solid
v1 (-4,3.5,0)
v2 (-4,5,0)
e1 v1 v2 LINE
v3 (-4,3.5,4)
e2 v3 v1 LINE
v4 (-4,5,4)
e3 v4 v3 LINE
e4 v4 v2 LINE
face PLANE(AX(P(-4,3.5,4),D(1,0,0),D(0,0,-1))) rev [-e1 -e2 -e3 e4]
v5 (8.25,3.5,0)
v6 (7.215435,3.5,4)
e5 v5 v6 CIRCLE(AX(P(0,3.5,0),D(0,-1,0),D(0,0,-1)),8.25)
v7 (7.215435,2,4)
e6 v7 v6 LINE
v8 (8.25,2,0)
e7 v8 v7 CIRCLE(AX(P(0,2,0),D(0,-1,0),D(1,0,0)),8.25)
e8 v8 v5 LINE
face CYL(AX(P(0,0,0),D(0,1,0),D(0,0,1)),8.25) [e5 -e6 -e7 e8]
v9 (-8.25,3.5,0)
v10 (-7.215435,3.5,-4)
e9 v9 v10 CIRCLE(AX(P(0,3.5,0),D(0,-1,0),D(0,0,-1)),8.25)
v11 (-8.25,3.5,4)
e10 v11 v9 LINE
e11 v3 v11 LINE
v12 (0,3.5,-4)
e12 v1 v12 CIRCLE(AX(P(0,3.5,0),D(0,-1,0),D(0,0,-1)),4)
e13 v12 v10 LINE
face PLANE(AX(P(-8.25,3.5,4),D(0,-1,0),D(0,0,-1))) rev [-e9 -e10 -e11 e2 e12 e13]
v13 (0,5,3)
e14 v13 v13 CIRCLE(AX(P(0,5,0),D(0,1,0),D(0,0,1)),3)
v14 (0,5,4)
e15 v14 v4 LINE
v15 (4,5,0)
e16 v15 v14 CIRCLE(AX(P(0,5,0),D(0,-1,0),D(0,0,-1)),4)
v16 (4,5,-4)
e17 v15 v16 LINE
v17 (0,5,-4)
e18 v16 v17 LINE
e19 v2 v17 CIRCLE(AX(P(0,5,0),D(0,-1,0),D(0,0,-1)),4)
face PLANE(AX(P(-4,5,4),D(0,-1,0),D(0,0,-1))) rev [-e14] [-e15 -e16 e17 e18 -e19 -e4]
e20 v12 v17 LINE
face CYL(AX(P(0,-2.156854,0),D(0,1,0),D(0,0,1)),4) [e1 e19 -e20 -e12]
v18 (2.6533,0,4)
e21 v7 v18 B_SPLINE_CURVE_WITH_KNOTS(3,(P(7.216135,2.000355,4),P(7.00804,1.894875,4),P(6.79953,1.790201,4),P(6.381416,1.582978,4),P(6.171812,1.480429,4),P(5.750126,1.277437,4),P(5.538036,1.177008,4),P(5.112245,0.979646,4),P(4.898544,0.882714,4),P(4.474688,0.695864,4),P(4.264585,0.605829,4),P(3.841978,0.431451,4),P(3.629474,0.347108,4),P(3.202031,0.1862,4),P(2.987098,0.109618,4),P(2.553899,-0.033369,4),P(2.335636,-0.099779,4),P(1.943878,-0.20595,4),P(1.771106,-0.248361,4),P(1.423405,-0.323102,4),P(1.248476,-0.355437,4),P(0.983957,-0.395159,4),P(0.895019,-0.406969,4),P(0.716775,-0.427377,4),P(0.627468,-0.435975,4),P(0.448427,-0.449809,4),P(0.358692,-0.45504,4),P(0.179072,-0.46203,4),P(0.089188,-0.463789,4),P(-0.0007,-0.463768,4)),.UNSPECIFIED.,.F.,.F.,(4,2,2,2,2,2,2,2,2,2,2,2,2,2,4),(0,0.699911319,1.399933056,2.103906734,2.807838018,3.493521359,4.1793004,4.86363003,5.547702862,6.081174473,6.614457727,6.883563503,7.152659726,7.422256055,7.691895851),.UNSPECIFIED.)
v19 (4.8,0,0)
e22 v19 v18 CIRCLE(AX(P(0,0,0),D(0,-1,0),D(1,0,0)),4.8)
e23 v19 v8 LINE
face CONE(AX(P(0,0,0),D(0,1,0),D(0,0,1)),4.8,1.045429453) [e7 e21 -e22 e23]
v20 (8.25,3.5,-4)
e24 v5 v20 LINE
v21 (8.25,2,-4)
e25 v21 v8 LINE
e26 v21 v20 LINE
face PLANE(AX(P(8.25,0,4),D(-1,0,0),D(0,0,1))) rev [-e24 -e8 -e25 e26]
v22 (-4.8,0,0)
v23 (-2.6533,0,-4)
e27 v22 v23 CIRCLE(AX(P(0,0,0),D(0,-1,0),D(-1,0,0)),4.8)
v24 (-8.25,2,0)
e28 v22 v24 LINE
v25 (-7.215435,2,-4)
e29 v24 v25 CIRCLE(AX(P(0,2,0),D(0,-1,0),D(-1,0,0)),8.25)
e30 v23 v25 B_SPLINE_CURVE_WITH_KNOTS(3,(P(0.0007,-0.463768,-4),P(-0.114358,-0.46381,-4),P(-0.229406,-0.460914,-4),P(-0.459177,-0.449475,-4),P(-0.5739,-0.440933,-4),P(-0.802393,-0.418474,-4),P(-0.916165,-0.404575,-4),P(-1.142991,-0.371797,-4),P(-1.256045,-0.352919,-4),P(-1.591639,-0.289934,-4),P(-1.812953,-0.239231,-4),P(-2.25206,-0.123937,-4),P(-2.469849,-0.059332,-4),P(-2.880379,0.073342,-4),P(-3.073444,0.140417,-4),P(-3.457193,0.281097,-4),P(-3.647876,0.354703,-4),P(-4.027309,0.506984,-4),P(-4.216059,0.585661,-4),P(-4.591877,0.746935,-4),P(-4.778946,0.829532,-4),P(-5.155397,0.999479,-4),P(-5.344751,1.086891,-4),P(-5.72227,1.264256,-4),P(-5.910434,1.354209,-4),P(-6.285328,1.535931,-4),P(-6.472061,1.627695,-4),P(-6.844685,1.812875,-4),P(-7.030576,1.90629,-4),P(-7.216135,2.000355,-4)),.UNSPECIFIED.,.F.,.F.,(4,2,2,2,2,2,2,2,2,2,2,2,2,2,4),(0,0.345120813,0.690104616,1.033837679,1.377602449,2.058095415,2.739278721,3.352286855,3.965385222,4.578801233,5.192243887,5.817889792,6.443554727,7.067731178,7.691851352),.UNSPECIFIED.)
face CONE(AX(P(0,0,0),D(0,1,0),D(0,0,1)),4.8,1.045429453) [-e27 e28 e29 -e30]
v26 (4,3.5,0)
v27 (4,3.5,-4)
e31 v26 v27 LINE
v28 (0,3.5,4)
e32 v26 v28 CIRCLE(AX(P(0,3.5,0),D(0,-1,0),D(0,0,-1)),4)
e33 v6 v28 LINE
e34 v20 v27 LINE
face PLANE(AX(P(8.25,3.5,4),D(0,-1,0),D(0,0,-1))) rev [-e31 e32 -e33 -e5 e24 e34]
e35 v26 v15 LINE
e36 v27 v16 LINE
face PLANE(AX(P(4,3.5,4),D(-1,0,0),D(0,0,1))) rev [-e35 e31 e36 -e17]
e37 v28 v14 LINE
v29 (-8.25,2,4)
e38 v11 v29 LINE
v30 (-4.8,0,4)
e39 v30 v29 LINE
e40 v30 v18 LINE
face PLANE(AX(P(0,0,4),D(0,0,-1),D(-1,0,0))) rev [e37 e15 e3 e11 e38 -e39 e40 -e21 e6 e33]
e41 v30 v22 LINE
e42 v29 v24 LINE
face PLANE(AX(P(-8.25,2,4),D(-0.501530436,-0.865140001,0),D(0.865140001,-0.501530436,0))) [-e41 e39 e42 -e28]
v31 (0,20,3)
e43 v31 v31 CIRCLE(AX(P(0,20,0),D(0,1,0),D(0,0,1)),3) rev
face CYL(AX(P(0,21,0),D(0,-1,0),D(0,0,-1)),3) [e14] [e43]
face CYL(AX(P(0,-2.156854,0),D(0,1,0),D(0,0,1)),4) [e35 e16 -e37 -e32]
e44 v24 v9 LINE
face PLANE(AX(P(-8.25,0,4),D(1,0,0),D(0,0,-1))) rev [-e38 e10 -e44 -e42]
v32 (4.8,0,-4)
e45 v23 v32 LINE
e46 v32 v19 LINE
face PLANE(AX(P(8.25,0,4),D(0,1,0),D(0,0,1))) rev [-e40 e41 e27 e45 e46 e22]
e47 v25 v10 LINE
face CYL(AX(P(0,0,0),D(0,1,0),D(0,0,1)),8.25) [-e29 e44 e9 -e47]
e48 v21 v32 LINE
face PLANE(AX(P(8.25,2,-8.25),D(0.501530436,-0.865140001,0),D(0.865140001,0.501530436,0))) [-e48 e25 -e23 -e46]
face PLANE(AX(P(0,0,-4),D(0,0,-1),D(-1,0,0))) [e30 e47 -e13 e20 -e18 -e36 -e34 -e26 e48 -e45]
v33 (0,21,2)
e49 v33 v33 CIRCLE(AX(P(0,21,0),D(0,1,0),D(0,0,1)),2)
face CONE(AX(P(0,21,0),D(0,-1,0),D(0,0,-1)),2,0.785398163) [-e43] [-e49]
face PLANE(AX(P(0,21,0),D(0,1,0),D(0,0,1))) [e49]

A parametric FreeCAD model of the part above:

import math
import FreeCAD as App
import Part
import Sketcher

V = App.Vector
Q = App.Units.Quantity


def edges_at(feature, points):
    """Names of the edges that pass closest to the given points."""
    edges = feature.Shape.Edges
    near = lambda p: min(range(len(edges)), key=lambda i: edges[i].distToShape(Part.Vertex(*p))[0])
    return sorted({f"Edge{near(p) + 1}" for p in points})


def add_polygon(sketch, points):
    """Adds a closed chain of lines whose ends are joined by coincident constraints."""
    first, n = sketch.GeometryCount, len(points)
    for a, b in zip(points, points[1:] + points[:1]):
        sketch.addGeometry(Part.LineSegment(App.Vector(*a, 0), App.Vector(*b, 0)), False)
    for i in range(n):
        sketch.addConstraint(Sketcher.Constraint("Coincident", first + i, 2, first + (i + 1) % n, 1))

doc = App.newDocument("Part")
params = doc.addObject("Spreadsheet::Sheet", "Params")
for row, (alias, value) in enumerate([
    ("sketch1_width", "8 mm"),
    ("sketch1_width2", "16.5 mm"),
    ("sketch1_height", "3.5 mm"),
    ("sketch1_height2", "1.5 mm"),
    ("pad1_length", "8 mm"),
    ("sketch2_diameter", "6 mm"),
    ("pad2_length", "16 mm"),
    ("sketch3_radius", "4 mm"),
    ("pocket1_length", "1.5 mm"),
    ("sketch4_height", "4 mm"),
    ("sketch4_radius", "8.25 mm"),
    ("sketch5_height", "2 mm"),
    ("sketch5_width", "3.45 mm"),
    ("sketch6_radius", "8.25 mm"),
    ("chamfer_size", "1 mm"),
], start=1):
    params.set(f"A{row}", alias)
    params.set(f"B{row}", "=" + value)
    params.setAlias(f"B{row}", alias)

body = doc.addObject("PartDesign::Body", "Body")

# Sketch on XY plane
sketch1 = body.newObject("Sketcher::SketchObject", "Sketch")
sketch1.AttachmentSupport = (doc.getObject("XY_Plane"), [""])
sketch1.MapMode = "FlatFace"
add_polygon(sketch1, [(-8.2, 0), (8.2, 0), (8.2, 3.5), (4, 3.5), (4, 5), (-4, 5), (-4, 3.5), (-8.2, 3.5)])  # lines 0-7
sketch1.addConstraint(Sketcher.Constraint("Horizontal", 0))
sketch1.addConstraint(Sketcher.Constraint("Vertical", 1))
sketch1.addConstraint(Sketcher.Constraint("Horizontal", 2))
sketch1.addConstraint(Sketcher.Constraint("Vertical", 3))
sketch1.addConstraint(Sketcher.Constraint("Horizontal", 4))
sketch1.addConstraint(Sketcher.Constraint("Vertical", 5))
sketch1.addConstraint(Sketcher.Constraint("Horizontal", 6))
sketch1.addConstraint(Sketcher.Constraint("Vertical", 7))
sketch1.addConstraint(Sketcher.Constraint("Symmetric", 0, 2, 7, 2, -1, 1))
sketch1.addConstraint(Sketcher.Constraint("Symmetric", 2, 2, 5, 2, -2))
sketch1.addConstraint(Sketcher.Constraint("DistanceX", 4, 2, 4, 1, Q("8 mm")))
sketch1.addConstraint(Sketcher.Constraint("DistanceX", 0, 1, 0, 2, Q("16.5 mm")))
sketch1.addConstraint(Sketcher.Constraint("DistanceY", 1, 1, 1, 2, Q("3.5 mm")))
sketch1.addConstraint(Sketcher.Constraint("DistanceY", 3, 1, 3, 2, Q("1.5 mm")))
sketch1.setExpression("Constraints[18]", "Params.sketch1_width")
sketch1.setExpression("Constraints[19]", "Params.sketch1_width2")
sketch1.setExpression("Constraints[20]", "Params.sketch1_height")
sketch1.setExpression("Constraints[21]", "Params.sketch1_height2")
pad1 = body.newObject("PartDesign::Pad", "Pad")
pad1.Profile = sketch1
pad1.setExpression("Length", "Params.pad1_length")
pad1.Midplane = True

# Sketch on XZ plane
sketch2 = body.newObject("Sketcher::SketchObject", "Sketch001")
sketch2.AttachmentSupport = (doc.getObject("XZ_Plane"), [""])
sketch2.MapMode = "FlatFace"
sketch2.AttachmentOffset = App.Placement(V(0, 0, -5), App.Rotation())
sketch2.addGeometry(Part.Circle(V(0, 0, 0), V(0, 0, 1), 3), False)
sketch2.addConstraint(Sketcher.Constraint("Coincident", 0, 3, -1, 1))
sketch2.addConstraint(Sketcher.Constraint("Diameter", 0, Q("6 mm")))
sketch2.setExpression("Constraints[1]", "Params.sketch2_diameter")
pad2 = body.newObject("PartDesign::Pad", "Pad001")
pad2.Profile = sketch2
pad2.setExpression("Length", "Params.pad2_length")
pad2.Reversed = True

# Sketch on XZ plane
sketch3 = body.newObject("Sketcher::SketchObject", "Sketch002")
sketch3.AttachmentSupport = (doc.getObject("XZ_Plane"), [""])
sketch3.MapMode = "FlatFace"
sketch3.AttachmentOffset = App.Placement(V(0, 0, -5), App.Rotation())
sketch3.addGeometry(Part.LineSegment(V(-4, -4, 0), V(-4, 0, 0)), False)
sketch3.addGeometry(Part.ArcOfCircle(Part.Circle(V(0, 0, 0), V(0, 0, 1), 4), math.radians(180), math.radians(270)), False)
sketch3.addGeometry(Part.LineSegment(V(0, -4, 0), V(-4, -4, 0)), False)
sketch3.addGeometry(Part.LineSegment(V(0, 4, 0), V(4, 4, 0)), False)
sketch3.addGeometry(Part.LineSegment(V(4, 4, 0), V(4, 0, 0)), False)
sketch3.addGeometry(Part.ArcOfCircle(Part.Circle(V(0, 0, 0), V(0, 0, 1), 4), math.radians(0), math.radians(90)), False)
sketch3.addConstraint(Sketcher.Constraint("Tangent", 0, 2, 1, 1))
sketch3.addConstraint(Sketcher.Constraint("Tangent", 1, 2, 2, 1))
sketch3.addConstraint(Sketcher.Constraint("Coincident", 2, 2, 0, 1))
sketch3.addConstraint(Sketcher.Constraint("Coincident", 3, 2, 4, 1))
sketch3.addConstraint(Sketcher.Constraint("Tangent", 4, 2, 5, 1))
sketch3.addConstraint(Sketcher.Constraint("Tangent", 5, 2, 3, 1))
sketch3.addConstraint(Sketcher.Constraint("Vertical", 0))
sketch3.addConstraint(Sketcher.Constraint("Horizontal", 2))
sketch3.addConstraint(Sketcher.Constraint("Horizontal", 3))
sketch3.addConstraint(Sketcher.Constraint("Vertical", 4))
sketch3.addConstraint(Sketcher.Constraint("Coincident", 1, 3, -1, 1))
sketch3.addConstraint(Sketcher.Constraint("Coincident", 5, 3, -1, 1))
sketch3.addConstraint(Sketcher.Constraint("Equal", 1, 5))
sketch3.addConstraint(Sketcher.Constraint("Radius", 1, Q("4 mm")))
sketch3.setExpression("Constraints[13]", "Params.sketch3_radius")
pocket1 = body.newObject("PartDesign::Pocket", "Pocket")
pocket1.Profile = sketch3
pocket1.setExpression("Length", "Params.pocket1_length")
pocket1.Reversed = True

# Sketch on XZ plane
sketch4 = body.newObject("Sketcher::SketchObject", "Sketch003")
sketch4.AttachmentSupport = (doc.getObject("XZ_Plane"), [""])
sketch4.MapMode = "FlatFace"
sketch4.AttachmentOffset = App.Placement(V(0, 0, -3.5), App.Rotation())
sketch4.addGeometry(Part.LineSegment(V(-7.2, -4, 0), V(-8.2, -4, 0)), False)
sketch4.addGeometry(Part.LineSegment(V(-8.2, -4, 0), V(-8.2, 0, 0)), False)
sketch4.addGeometry(Part.ArcOfCircle(Part.Circle(V(0, 0, 0), V(0, 0, 1), 8.3), math.radians(-180), math.radians(-151)), False)
sketch4.addGeometry(Part.LineSegment(V(7.2, 4, 0), V(8.2, 4, 0)), False)
sketch4.addGeometry(Part.LineSegment(V(8.2, 4, 0), V(8.2, 0, 0)), False)
sketch4.addGeometry(Part.ArcOfCircle(Part.Circle(V(0, 0, 0), V(0, 0, 1), 8.3), math.radians(0), math.radians(29)), False)
sketch4.addConstraint(Sketcher.Constraint("Coincident", 0, 2, 1, 1))
sketch4.addConstraint(Sketcher.Constraint("Tangent", 1, 2, 2, 1))
sketch4.addConstraint(Sketcher.Constraint("Coincident", 2, 2, 0, 1))
sketch4.addConstraint(Sketcher.Constraint("Coincident", 3, 2, 4, 1))
sketch4.addConstraint(Sketcher.Constraint("Tangent", 4, 2, 5, 1))
sketch4.addConstraint(Sketcher.Constraint("Coincident", 5, 2, 3, 1))
sketch4.addConstraint(Sketcher.Constraint("Horizontal", 0))
sketch4.addConstraint(Sketcher.Constraint("Vertical", 1))
sketch4.addConstraint(Sketcher.Constraint("Horizontal", 3))
sketch4.addConstraint(Sketcher.Constraint("Vertical", 4))
sketch4.addConstraint(Sketcher.Constraint("Coincident", 2, 3, -1, 1))
sketch4.addConstraint(Sketcher.Constraint("Coincident", 5, 3, -1, 1))
sketch4.addConstraint(Sketcher.Constraint("Equal", 2, 5))
sketch4.addConstraint(Sketcher.Constraint("Equal", 0, 3))
sketch4.addConstraint(Sketcher.Constraint("DistanceY", 1, 1, 1, 2, Q("4 mm")))
sketch4.addConstraint(Sketcher.Constraint("Radius", 2, Q("8.25 mm")))
sketch4.setExpression("Constraints[14]", "Params.sketch4_height")
sketch4.setExpression("Constraints[15]", "Params.sketch4_radius")
pocket2 = body.newObject("PartDesign::Pocket", "Pocket001")
pocket2.Profile = sketch4
pocket2.Type = "ThroughAll"
pocket2.Reversed = True

# Sketch on XY plane
sketch5 = body.newObject("Sketcher::SketchObject", "Sketch004")
sketch5.AttachmentSupport = (doc.getObject("XY_Plane"), [""])
sketch5.MapMode = "FlatFace"
sketch5.AttachmentOffset = App.Placement(V(0, 0, 4), App.Rotation())
add_polygon(sketch5, [(-4.8, 0), (-8.2, 2), (-8.2, 0)])  # lines 0-2
sketch5.addConstraint(Sketcher.Constraint("Vertical", 1))
sketch5.addConstraint(Sketcher.Constraint("Horizontal", 2))
sketch5.addConstraint(Sketcher.Constraint("PointOnObject", 1, 2, -1))
sketch5.addConstraint(Sketcher.Constraint("DistanceY", 1, 2, 1, 1, Q("2 mm")))
sketch5.addConstraint(Sketcher.Constraint("DistanceX", 2, 1, 2, 2, Q("3.45 mm")))
sketch5.addConstraint(Sketcher.Constraint("DistanceX", 2, 2, -1, 1, Q("4.8 mm")))
sketch5.setExpression("Constraints[6]", "Params.sketch5_height")
sketch5.setExpression("Constraints[7]", "Params.sketch5_width")

# Sketch on XZ plane
sketch6 = body.newObject("Sketcher::SketchObject", "Sketch005")
sketch6.AttachmentSupport = (doc.getObject("XZ_Plane"), [""])
sketch6.MapMode = "FlatFace"
sketch6.addGeometry(Part.LineSegment(V(0, -8, 0), V(8, -8, 0)), False)
sketch6.addGeometry(Part.LineSegment(V(8, -8, 0), V(8, 0, 0)), False)
sketch6.addGeometry(Part.ArcOfCircle(Part.Circle(V(0, 0, 0), V(0, 0, 1), 8), math.radians(0), math.radians(90)), False)
sketch6.addGeometry(Part.LineSegment(V(0, 8, 0), V(-8, 8, 0)), False)
sketch6.addGeometry(Part.LineSegment(V(-8, 8, 0), V(-8, 0, 0)), False)
sketch6.addGeometry(Part.ArcOfCircle(Part.Circle(V(0, 0, 0), V(0, 0, 1), 8), math.radians(180), math.radians(270)), False)
sketch6.addConstraint(Sketcher.Constraint("Coincident", 0, 2, 1, 1))
sketch6.addConstraint(Sketcher.Constraint("Tangent", 1, 2, 2, 1))
sketch6.addConstraint(Sketcher.Constraint("Tangent", 2, 2, 3, 1))
sketch6.addConstraint(Sketcher.Constraint("Coincident", 3, 2, 4, 1))
sketch6.addConstraint(Sketcher.Constraint("Tangent", 4, 2, 5, 1))
sketch6.addConstraint(Sketcher.Constraint("Tangent", 5, 2, 0, 1))
sketch6.addConstraint(Sketcher.Constraint("Horizontal", 0))
sketch6.addConstraint(Sketcher.Constraint("Vertical", 1))
sketch6.addConstraint(Sketcher.Constraint("Horizontal", 3))
sketch6.addConstraint(Sketcher.Constraint("Vertical", 4))
sketch6.addConstraint(Sketcher.Constraint("Coincident", 2, 3, -1, 1))
sketch6.addConstraint(Sketcher.Constraint("Coincident", 5, 3, -1, 1))
sketch6.addConstraint(Sketcher.Constraint("Equal", 2, 5))
sketch6.addConstraint(Sketcher.Constraint("Radius", 2, Q("8.25 mm")))
sketch6.setExpression("Constraints[13]", "Params.sketch6_radius")
doc.recompute()

subtractivepipe = body.newObject("PartDesign::SubtractivePipe", "SubtractivePipe")
subtractivepipe.Profile = sketch5
subtractivepipe.Spine = (sketch6, ["Edge1", "Edge2", "Edge3", "Edge4", "Edge5", "Edge6"])
subtractivepipe.Transition = "Right corner"
doc.recompute()

chamfer = body.newObject("PartDesign::Chamfer", "Chamfer")
chamfer.Base = (subtractivepipe, edges_at(subtractivepipe, [(0, 21, -3)]))
chamfer.setExpression("Size", "Params.chamfer_size")

doc.recompute()
